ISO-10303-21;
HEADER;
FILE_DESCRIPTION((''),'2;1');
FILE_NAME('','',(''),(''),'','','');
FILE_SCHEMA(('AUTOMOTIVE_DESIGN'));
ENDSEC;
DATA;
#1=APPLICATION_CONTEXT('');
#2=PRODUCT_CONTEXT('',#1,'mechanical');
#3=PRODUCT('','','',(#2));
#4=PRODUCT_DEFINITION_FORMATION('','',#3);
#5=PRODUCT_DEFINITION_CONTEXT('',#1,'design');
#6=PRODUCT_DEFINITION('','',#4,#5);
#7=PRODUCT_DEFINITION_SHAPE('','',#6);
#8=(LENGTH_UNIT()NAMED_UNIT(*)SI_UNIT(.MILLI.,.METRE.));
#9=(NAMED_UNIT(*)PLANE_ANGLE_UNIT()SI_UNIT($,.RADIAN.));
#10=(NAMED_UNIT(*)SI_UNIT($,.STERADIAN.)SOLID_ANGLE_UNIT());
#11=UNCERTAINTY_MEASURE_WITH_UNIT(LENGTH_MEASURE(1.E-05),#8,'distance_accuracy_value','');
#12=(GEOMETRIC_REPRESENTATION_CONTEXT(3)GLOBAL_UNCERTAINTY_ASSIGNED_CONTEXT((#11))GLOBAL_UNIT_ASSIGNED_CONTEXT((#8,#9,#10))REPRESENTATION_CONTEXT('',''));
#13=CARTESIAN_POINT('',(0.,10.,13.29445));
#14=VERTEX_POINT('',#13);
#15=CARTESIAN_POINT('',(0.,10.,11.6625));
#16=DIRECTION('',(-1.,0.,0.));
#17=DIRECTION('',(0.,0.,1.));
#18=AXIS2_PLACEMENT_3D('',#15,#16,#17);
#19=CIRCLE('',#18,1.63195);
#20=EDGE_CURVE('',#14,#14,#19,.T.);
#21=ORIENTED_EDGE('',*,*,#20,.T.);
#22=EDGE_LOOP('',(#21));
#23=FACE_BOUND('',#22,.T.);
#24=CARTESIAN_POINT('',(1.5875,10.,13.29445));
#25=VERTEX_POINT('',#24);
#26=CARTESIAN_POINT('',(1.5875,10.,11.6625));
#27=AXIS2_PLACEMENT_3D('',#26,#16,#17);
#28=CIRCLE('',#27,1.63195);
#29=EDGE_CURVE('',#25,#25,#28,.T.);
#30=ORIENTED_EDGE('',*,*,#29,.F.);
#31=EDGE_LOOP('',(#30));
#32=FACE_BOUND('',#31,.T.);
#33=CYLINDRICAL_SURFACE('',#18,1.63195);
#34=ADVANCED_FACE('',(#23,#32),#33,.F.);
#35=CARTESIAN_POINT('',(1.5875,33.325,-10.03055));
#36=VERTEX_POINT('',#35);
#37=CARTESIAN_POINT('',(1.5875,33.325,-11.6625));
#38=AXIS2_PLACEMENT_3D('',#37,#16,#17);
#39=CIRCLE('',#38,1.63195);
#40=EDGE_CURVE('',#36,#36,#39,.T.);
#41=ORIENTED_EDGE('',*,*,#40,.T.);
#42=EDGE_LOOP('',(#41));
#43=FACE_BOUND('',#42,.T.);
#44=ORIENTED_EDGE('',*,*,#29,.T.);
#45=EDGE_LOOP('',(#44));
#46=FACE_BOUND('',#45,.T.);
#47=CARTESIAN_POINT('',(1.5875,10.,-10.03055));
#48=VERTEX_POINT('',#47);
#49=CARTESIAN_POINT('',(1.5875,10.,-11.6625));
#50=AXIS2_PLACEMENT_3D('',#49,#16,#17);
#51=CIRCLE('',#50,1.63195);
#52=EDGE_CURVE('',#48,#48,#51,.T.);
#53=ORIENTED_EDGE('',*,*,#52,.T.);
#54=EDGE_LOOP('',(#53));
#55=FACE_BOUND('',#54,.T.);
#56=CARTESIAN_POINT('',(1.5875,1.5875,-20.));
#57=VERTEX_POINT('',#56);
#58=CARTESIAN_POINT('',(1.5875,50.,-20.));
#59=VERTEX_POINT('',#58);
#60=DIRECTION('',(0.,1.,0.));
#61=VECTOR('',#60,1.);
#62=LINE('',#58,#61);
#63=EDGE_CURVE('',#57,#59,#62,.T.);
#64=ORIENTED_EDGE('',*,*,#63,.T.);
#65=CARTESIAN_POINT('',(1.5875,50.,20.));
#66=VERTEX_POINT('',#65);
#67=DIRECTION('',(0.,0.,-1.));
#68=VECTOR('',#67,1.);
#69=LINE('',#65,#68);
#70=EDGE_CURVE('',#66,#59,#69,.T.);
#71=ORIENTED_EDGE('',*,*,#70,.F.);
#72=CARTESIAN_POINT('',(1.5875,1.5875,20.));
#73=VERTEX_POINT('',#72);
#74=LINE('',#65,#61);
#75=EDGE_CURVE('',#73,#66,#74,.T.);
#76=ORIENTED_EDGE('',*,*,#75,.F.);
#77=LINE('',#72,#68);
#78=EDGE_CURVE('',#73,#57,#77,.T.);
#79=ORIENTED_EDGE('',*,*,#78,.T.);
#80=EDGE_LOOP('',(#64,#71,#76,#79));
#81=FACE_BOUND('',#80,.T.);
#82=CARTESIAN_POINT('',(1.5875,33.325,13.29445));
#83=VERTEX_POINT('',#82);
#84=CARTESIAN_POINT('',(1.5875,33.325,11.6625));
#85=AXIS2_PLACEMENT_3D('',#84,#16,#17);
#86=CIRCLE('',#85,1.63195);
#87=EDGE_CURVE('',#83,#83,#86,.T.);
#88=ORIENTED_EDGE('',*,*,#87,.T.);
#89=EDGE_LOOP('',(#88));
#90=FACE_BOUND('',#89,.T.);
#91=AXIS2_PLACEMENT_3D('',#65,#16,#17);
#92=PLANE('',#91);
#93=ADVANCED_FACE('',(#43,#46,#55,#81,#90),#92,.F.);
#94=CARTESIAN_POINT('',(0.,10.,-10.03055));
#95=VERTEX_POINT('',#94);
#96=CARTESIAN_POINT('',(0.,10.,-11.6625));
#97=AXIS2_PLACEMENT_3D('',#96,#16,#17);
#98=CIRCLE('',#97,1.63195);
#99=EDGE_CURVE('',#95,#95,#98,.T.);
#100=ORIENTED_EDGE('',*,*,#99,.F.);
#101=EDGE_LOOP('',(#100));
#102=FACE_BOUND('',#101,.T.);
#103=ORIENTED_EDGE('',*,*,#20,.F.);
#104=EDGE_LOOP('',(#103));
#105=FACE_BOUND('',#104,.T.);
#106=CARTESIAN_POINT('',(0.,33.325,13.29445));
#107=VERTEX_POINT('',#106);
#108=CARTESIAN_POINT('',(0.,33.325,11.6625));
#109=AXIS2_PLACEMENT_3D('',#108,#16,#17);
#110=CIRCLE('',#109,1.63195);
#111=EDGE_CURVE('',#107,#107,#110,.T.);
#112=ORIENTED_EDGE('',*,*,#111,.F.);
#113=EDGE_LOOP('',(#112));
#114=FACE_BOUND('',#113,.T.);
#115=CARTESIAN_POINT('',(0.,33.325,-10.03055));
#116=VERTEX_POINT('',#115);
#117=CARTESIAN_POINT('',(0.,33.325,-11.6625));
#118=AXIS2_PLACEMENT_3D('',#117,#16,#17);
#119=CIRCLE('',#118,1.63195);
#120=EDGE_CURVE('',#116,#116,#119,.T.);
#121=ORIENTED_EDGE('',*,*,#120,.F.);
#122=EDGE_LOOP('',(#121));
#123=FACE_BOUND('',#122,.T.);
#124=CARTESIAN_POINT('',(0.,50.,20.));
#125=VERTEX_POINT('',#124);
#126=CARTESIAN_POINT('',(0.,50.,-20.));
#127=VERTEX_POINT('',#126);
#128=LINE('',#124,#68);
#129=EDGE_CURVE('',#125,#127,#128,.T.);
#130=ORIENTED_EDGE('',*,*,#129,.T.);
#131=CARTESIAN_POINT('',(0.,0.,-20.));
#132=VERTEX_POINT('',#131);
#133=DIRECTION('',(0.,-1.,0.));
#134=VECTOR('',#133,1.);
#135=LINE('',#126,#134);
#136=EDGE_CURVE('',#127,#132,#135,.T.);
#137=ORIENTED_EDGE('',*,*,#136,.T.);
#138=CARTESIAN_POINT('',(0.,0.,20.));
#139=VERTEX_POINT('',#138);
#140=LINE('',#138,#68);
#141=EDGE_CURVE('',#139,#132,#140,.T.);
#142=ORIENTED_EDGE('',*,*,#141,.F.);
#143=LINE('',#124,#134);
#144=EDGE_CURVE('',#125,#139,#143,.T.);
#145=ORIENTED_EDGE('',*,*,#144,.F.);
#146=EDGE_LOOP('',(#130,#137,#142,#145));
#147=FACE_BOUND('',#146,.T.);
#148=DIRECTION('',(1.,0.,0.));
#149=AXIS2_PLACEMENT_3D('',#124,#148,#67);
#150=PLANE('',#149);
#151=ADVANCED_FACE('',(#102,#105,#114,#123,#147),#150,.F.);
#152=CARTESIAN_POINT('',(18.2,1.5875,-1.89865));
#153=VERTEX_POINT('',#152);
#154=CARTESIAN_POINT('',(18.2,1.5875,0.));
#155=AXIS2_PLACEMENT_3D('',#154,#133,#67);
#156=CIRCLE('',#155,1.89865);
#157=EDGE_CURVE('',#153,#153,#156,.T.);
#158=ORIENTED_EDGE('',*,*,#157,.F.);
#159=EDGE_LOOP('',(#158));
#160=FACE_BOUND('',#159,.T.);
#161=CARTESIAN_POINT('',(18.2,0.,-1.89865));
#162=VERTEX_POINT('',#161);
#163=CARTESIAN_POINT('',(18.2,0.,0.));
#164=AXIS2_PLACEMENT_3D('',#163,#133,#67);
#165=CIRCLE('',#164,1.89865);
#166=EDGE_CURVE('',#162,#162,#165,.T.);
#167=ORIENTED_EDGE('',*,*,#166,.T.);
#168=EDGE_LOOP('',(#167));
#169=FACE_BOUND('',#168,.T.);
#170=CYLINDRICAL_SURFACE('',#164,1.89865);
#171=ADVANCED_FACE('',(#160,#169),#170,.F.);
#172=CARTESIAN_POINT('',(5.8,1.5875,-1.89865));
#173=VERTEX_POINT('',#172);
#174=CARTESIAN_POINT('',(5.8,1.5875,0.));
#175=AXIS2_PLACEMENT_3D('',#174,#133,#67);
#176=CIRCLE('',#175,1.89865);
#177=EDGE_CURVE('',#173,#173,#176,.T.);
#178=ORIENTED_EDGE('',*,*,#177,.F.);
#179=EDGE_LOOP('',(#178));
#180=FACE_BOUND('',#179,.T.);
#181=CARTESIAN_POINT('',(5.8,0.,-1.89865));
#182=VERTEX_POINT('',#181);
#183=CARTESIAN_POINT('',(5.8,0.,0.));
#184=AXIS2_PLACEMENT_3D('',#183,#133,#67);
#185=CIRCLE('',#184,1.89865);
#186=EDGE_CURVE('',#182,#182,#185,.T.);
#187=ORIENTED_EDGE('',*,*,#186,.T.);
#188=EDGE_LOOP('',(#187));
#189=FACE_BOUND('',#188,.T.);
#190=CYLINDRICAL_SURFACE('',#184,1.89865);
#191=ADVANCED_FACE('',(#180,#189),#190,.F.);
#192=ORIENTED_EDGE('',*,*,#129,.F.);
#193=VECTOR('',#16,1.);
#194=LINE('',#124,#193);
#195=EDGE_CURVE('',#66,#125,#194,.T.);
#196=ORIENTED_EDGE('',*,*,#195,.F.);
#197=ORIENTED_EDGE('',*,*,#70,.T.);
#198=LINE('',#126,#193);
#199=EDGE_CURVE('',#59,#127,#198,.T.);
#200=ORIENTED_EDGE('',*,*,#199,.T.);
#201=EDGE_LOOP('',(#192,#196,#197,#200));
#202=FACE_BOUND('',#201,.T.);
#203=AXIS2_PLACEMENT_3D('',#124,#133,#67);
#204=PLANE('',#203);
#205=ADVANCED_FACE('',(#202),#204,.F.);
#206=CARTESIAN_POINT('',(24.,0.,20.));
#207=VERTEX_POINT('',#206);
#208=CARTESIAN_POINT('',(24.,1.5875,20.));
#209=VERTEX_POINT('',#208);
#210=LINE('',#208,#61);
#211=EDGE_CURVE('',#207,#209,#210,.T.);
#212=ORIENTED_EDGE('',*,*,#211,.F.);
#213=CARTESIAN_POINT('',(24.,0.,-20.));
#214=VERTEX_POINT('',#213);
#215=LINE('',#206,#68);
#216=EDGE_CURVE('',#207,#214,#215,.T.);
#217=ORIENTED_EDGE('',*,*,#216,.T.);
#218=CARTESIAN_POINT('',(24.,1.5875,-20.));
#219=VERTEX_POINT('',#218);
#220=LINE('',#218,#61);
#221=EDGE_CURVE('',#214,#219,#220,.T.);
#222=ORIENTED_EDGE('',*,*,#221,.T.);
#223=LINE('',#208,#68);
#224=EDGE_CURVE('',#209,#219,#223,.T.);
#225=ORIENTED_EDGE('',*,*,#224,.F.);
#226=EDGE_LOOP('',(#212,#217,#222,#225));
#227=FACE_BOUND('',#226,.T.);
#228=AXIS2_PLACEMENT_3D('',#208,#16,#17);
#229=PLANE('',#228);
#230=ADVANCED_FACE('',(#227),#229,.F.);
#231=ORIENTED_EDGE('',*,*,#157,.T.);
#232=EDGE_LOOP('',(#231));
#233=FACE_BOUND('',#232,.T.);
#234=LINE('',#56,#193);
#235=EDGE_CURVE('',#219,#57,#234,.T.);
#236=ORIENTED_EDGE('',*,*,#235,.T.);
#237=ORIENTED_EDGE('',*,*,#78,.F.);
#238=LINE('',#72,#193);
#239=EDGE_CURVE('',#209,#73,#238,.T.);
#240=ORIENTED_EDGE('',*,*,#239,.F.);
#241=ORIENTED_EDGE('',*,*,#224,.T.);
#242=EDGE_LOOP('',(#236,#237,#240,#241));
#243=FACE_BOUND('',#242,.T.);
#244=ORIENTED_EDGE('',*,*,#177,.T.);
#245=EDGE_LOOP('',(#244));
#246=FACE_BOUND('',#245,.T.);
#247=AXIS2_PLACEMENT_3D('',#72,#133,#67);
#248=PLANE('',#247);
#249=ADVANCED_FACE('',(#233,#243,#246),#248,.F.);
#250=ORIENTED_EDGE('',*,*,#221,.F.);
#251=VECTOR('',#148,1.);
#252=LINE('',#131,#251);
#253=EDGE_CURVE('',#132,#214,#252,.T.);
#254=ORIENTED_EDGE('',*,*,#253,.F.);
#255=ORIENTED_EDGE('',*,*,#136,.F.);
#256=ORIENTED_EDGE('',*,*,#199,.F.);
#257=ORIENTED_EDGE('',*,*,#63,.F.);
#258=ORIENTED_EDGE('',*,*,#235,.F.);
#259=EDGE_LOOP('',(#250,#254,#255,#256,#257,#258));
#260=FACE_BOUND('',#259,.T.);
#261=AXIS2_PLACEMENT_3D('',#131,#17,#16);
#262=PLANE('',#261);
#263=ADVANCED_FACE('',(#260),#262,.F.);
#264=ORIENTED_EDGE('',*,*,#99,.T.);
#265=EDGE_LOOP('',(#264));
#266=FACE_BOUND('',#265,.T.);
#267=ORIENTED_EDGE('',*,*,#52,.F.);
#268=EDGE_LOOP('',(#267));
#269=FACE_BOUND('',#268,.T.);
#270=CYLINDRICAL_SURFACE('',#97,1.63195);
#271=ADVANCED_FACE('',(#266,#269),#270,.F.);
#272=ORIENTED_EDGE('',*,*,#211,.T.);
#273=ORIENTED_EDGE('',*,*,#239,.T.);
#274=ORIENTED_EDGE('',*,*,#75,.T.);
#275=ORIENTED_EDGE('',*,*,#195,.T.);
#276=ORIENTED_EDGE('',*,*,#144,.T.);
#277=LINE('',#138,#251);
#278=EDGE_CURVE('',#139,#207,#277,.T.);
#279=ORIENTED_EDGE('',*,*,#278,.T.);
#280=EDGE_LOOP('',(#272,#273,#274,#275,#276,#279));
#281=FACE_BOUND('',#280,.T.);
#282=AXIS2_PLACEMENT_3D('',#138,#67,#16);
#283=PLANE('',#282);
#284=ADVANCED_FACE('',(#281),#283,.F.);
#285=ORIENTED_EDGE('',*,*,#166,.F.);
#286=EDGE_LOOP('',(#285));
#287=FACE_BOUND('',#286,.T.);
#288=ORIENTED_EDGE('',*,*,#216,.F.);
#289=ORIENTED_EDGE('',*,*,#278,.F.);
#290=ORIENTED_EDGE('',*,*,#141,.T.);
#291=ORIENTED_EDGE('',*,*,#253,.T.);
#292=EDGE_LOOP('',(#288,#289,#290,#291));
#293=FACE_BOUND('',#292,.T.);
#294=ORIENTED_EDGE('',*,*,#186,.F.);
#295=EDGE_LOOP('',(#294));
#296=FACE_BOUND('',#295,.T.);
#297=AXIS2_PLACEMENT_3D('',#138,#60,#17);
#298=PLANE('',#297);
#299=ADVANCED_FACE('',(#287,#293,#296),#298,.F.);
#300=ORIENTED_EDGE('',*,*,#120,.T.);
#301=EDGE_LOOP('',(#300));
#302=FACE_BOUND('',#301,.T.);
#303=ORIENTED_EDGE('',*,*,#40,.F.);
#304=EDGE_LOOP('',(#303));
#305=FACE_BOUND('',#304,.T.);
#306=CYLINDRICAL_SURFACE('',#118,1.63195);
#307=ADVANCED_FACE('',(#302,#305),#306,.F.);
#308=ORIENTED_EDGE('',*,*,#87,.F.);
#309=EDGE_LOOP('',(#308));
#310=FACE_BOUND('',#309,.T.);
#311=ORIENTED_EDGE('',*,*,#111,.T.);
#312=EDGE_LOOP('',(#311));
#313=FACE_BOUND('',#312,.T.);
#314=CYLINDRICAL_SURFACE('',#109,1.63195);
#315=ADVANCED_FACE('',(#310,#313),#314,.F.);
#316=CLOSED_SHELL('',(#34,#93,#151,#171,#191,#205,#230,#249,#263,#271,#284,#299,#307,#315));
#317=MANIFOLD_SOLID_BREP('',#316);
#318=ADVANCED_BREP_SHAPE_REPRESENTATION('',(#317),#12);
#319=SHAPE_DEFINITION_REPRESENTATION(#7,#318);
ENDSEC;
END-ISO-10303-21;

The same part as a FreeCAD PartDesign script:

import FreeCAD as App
import Part
import Sketcher


def add_polygon(sketch, points):
    """Adds a closed chain of lines whose ends are joined by coincident constraints."""
    first, n = sketch.GeometryCount, len(points)
    for a, b in zip(points, points[1:] + points[:1]):
        sketch.addGeometry(Part.LineSegment(App.Vector(*a, 0), App.Vector(*b, 0)), False)
    for i in range(n):
        sketch.addConstraint(Sketcher.Constraint("Coincident", first + i, 2, first + (i + 1) % n, 1))

doc = App.newDocument("Part")
body = doc.addObject("PartDesign::Body", "Body")

sketch1 = body.newObject("Sketcher::SketchObject", "Sketch")
sketch1.AttachmentSupport = (doc.getObject("XY_Plane"), [""])
sketch1.MapMode = "FlatFace"
add_polygon(sketch1, [(0, 50), (0, 0), (24, 0), (24, 1.6), (1.6, 1.6), (1.6, 50)])
sketch1.addConstraint([
    Sketcher.Constraint("Vertical", 0),
    Sketcher.Constraint("Horizontal", 1),
    Sketcher.Constraint("Vertical", 2),
    Sketcher.Constraint("Horizontal", 3),
    Sketcher.Constraint("Vertical", 4),
    Sketcher.Constraint("Horizontal", 5),
    Sketcher.Constraint("Coincident", 0, 2, -1, 1),
    Sketcher.Constraint("Equal", 5, 2),
    Sketcher.Constraint("DistanceX", 1, 1, 1, 2, 24.0),
    Sketcher.Constraint("DistanceY", 0, 2, 0, 1, 50.0),
    Sketcher.Constraint("DistanceX", 3, 2, 3, 1, 22.4125),
])
pad1 = body.newObject("PartDesign::Pad", "Pad")
pad1.Profile = sketch1
pad1.Length = 20

sketch2 = body.newObject("Sketcher::SketchObject", "Sketch001")
sketch2.AttachmentSupport = (doc.getObject("YZ_Plane"), [""])
sketch2.MapMode = "FlatFace"
sketch2.addGeometry([
    Part.Circle(App.Vector(33.3, 11.7, 0), App.Vector(0, 0, 1), 1.6),
    Part.Circle(App.Vector(10, 11.7, 0), App.Vector(0, 0, 1), 1.6),
], False)
sketch2.addConstraint([
    Sketcher.Constraint("Equal", 0, 1),
    Sketcher.Constraint("Horizontal", 0, 3, 1, 3),
    Sketcher.Constraint("DistanceX", -1, 1, 1, 3, 10.0),
    Sketcher.Constraint("Diameter", 0, 3.2639),
    Sketcher.Constraint("DistanceX", -1, 1, 0, 3, 33.325),
    Sketcher.Constraint("DistanceY", -1, 1, 0, 3, 11.6625),
])
doc.recompute()
hole = body.newObject("PartDesign::Hole", "Hole")
hole.Profile = sketch2
hole.ThreadType = "None"
hole.Diameter = 3.2639
hole.DepthType = "ThroughAll"
hole.Reversed = True
doc.recompute()

mirrored = body.newObject("PartDesign::Mirrored", "Mirrored")
mirrored.Originals = [pad1, hole]
mirrored.MirrorPlane = (doc.getObject("XY_Plane"), [""])
body.Tip = mirrored

sketch3 = body.newObject("Sketcher::SketchObject", "Sketch002")
sketch3.AttachmentSupport = (doc.getObject("XZ_Plane"), [""])
sketch3.MapMode = "FlatFace"
sketch3.addGeometry([
    Part.Circle(App.Vector(18.2, 0, 0), App.Vector(0, 0, 1), 1.9),
    Part.Circle(App.Vector(5.8, 0, 0), App.Vector(0, 0, 1), 1.9),
], False)
sketch3.addConstraint([
    Sketcher.Constraint("Equal", 0, 1),
    Sketcher.Constraint("PointOnObject", 0, 3, -1),
    Sketcher.Constraint("PointOnObject", 1, 3, -1),
    Sketcher.Constraint("Diameter", 0, 3.7973),
    Sketcher.Constraint("DistanceX", -1, 1, 0, 3, 18.2),
    Sketcher.Constraint("DistanceX", -1, 1, 1, 3, 5.8),
])
doc.recompute()
hole2 = body.newObject("PartDesign::Hole", "Hole001")
hole2.Profile = sketch3
hole2.ThreadType = "None"
hole2.Diameter = 3.7973
hole2.DepthType = "ThroughAll"

doc.recompute()
